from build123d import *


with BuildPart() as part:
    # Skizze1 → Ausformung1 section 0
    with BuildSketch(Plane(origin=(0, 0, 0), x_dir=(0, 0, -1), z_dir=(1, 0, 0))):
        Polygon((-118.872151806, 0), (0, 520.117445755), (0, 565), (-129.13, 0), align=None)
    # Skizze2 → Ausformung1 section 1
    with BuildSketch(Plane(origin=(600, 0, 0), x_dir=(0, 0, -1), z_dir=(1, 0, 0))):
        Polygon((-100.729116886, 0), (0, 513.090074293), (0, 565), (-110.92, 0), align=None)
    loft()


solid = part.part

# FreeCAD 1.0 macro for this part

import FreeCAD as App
import Part
import Sketcher
from FreeCAD import Vector
Q = App.Units.Quantity

doc = App.newDocument("Part")
body = doc.addObject("PartDesign::Body", "Body")

sketch1 = body.newObject("Sketcher::SketchObject", "Sketch")
sketch1.AttachmentSupport = (doc.getObject("YZ_Plane"), [""])
sketch1.MapMode = "FlatFace"
sketch1.addGeometry([
    Part.LineSegment(Vector(0, 119, 0), Vector(520, 0, 0)),
    Part.LineSegment(Vector(520, 0, 0), Vector(565, 0, 0)),
    Part.LineSegment(Vector(565, 0, 0), Vector(0, 129, 0)),
    Part.LineSegment(Vector(0, 129, 0), Vector(0, 119, 0)),
], False)
sketch1.addConstraint([
    Sketcher.Constraint("Coincident", 0, 2, 1, 1),
    Sketcher.Constraint("Coincident", 1, 2, 2, 1),
    Sketcher.Constraint("Coincident", 2, 2, 3, 1),
    Sketcher.Constraint("Coincident", 3, 2, 0, 1),
    Sketcher.Constraint("Horizontal", 1),
    Sketcher.Constraint("Vertical", 3),
    Sketcher.Constraint("PointOnObject", 0, 2, -1),
    Sketcher.Constraint("PointOnObject", 2, 2, -2),
    Sketcher.Constraint("Parallel", 0, 2),
    Sketcher.Constraint("DistanceX", -1, 1, 1, 2, Q("565 mm")),
    Sketcher.Constraint("DistanceY", -1, 1, 2, 2, Q("129.13 mm")),
    Sketcher.Constraint("DistanceY", 3, 2, 3, 1, Q("10.257848 mm")),
])

sketch2 = body.newObject("Sketcher::SketchObject", "Sketch001")
sketch2.AttachmentSupport = (doc.getObject("YZ_Plane"), [""])
sketch2.MapMode = "FlatFace"
sketch2.AttachmentOffset = App.Placement(Vector(0, 0, 600), App.Rotation())
sketch2.addGeometry([
    Part.LineSegment(Vector(0, 101, 0), Vector(513, 0, 0)),
    Part.LineSegment(Vector(513, 0, 0), Vector(565, 0, 0)),
    Part.LineSegment(Vector(565, 0, 0), Vector(0, 111, 0)),
    Part.LineSegment(Vector(0, 111, 0), Vector(0, 101, 0)),
], False)
sketch2.addConstraint([
    Sketcher.Constraint("Coincident", 0, 2, 1, 1),
    Sketcher.Constraint("Coincident", 1, 2, 2, 1),
    Sketcher.Constraint("Coincident", 2, 2, 3, 1),
    Sketcher.Constraint("Coincident", 3, 2, 0, 1),
    Sketcher.Constraint("Horizontal", 1),
    Sketcher.Constraint("Vertical", 3),
    Sketcher.Constraint("PointOnObject", 0, 2, -1),
    Sketcher.Constraint("PointOnObject", 2, 2, -2),
    Sketcher.Constraint("Parallel", 0, 2),
    Sketcher.Constraint("DistanceX", -1, 1, 1, 2, Q("565 mm")),
    Sketcher.Constraint("DistanceY", -1, 1, 2, 2, Q("110.92 mm")),
    Sketcher.Constraint("DistanceX", 1, 1, 1, 2, Q("51.909926 mm")),
])

additiveloft = body.newObject("PartDesign::AdditiveLoft", "AdditiveLoft")
additiveloft.Profile = sketch1
additiveloft.Sections = [sketch2]

doc.recompute()
